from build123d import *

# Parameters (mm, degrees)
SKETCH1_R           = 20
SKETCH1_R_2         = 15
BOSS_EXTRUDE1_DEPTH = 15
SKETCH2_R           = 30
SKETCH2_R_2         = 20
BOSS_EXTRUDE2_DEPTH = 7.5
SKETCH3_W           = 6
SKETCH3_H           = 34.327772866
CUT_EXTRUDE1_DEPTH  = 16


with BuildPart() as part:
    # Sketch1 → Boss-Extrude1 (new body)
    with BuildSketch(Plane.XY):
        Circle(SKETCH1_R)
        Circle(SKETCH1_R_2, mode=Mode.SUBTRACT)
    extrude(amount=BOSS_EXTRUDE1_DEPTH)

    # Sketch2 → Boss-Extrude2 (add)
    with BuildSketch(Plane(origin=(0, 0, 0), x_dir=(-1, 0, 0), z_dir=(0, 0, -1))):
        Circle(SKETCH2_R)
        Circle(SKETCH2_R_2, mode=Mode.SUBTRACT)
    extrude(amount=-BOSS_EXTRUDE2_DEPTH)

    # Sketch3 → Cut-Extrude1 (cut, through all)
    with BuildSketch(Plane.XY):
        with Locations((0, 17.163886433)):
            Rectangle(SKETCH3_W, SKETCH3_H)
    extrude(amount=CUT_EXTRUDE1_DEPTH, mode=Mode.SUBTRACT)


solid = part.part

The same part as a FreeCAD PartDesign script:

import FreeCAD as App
import Part
import Sketcher
from FreeCAD import Vector
Q = App.Units.Quantity

doc = App.newDocument("Part")
body = doc.addObject("PartDesign::Body", "Body")

sketch1 = doc.addObject("Sketcher::SketchObject", "Sketch")
body.addObject(sketch1)
sketch1.AttachmentSupport = (doc.XY_Plane, [""])
sketch1.MapMode = "FlatFace"
sketch1.addGeometry([
    Part.Circle(Vector(0, 0, 0), Vector(0, 0, 1), 20),
    Part.Circle(Vector(0, 0, 0), Vector(0, 0, 1), 15),
], False)
sketch1.addConstraint([
    Sketcher.Constraint("Coincident", 0, 3, -1, 1),
    Sketcher.Constraint("Coincident", 1, 3, -1, 1),
    Sketcher.Constraint("Diameter", 0, Q("40 mm")),
    Sketcher.Constraint("Diameter", 1, Q("30 mm")),
])
pad1 = doc.addObject("PartDesign::Pad", "Pad")
body.addObject(pad1)
pad1.Profile = sketch1
pad1.Length = 15

sketch2 = doc.addObject("Sketcher::SketchObject", "Sketch001")
body.addObject(sketch2)
sketch2.AttachmentSupport = (doc.XY_Plane, [""])
sketch2.MapMode = "FlatFace"
sketch2.addGeometry([
    Part.Circle(Vector(0, 0, 0), Vector(0, 0, 1), 30),
    Part.Circle(Vector(0, 0, 0), Vector(0, 0, 1), 20),
], False)
sketch2.addConstraint([
    Sketcher.Constraint("Coincident", 0, 3, -1, 1),
    Sketcher.Constraint("Coincident", 1, 3, -1, 1),
    Sketcher.Constraint("Diameter", 0, Q("60 mm")),
    Sketcher.Constraint("Diameter", 1, Q("40 mm")),
])
pad2 = doc.addObject("PartDesign::Pad", "Pad001")
body.addObject(pad2)
pad2.Profile = sketch2
pad2.Length = 7.5

sketch3 = doc.addObject("Sketcher::SketchObject", "Sketch002")
body.addObject(sketch3)
sketch3.AttachmentSupport = (doc.XY_Plane, [""])
sketch3.MapMode = "FlatFace"
sketch3.addGeometry([
    Part.LineSegment(Vector(-3, 34, 0), Vector(-3, 0, 0)),
    Part.LineSegment(Vector(-3, 0, 0), Vector(3, 0, 0)),
    Part.LineSegment(Vector(3, 0, 0), Vector(3, 34, 0)),
    Part.LineSegment(Vector(3, 34, 0), Vector(-3, 34, 0)),
], False)
sketch3.addConstraint([
    Sketcher.Constraint("Coincident", 0, 2, 1, 1),
    Sketcher.Constraint("Coincident", 1, 2, 2, 1),
    Sketcher.Constraint("Coincident", 2, 2, 3, 1),
    Sketcher.Constraint("Coincident", 3, 2, 0, 1),
    Sketcher.Constraint("Vertical", 0),
    Sketcher.Constraint("Horizontal", 1),
    Sketcher.Constraint("Vertical", 2),
    Sketcher.Constraint("Horizontal", 3),
    Sketcher.Constraint("Symmetric", 0, 2, 1, 2, -1, 1),
    Sketcher.Constraint("DistanceX", 1, 1, 1, 2, Q("6 mm")),
    Sketcher.Constraint("DistanceY", 0, 2, 0, 1, Q("34.327773 mm")),
])
pocket1 = doc.addObject("PartDesign::Pocket", "Pocket")
body.addObject(pocket1)
pocket1.Profile = sketch3
pocket1.Type = "ThroughAll"
pocket1.Reversed = True

doc.recompute()
